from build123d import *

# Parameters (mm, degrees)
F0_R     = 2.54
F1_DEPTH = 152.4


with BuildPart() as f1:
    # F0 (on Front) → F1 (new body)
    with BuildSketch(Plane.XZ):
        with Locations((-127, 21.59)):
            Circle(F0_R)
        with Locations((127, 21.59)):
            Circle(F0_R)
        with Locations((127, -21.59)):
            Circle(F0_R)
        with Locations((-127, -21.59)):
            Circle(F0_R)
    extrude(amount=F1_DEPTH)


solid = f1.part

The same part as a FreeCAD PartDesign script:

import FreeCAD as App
import Part
import Sketcher

V = App.Vector
Q = App.Units.Quantity

doc = App.newDocument("Part")
body = doc.addObject("PartDesign::Body", "Body")
body.AllowCompound = True

# Sketch on XZ plane
sketch1 = doc.addObject("Sketcher::SketchObject", "Sketch")
body.addObject(sketch1)
sketch1.AttachmentSupport = (doc.XZ_Plane, [""])
sketch1.MapMode = "FlatFace"
sketch1.addGeometry(Part.Circle(V(-127, 21.6, 0), V(0, 0, 1), 2.5), False)
sketch1.addGeometry(Part.Circle(V(127, 21.6, 0), V(0, 0, 1), 2.5), False)
sketch1.addGeometry(Part.Circle(V(127, -21.6, 0), V(0, 0, 1), 2.5), False)
sketch1.addGeometry(Part.Circle(V(-127, -21.6, 0), V(0, 0, 1), 2.5), False)
sketch1.addConstraint(Sketcher.Constraint("Equal", 0, 1))
sketch1.addConstraint(Sketcher.Constraint("Equal", 1, 2))
sketch1.addConstraint(Sketcher.Constraint("Equal", 2, 3))
sketch1.addConstraint(Sketcher.Constraint("Symmetric", 0, 3, 2, 3, -1, 1))
sketch1.addConstraint(Sketcher.Constraint("Symmetric", 1, 3, 3, 3, -1, 1))
sketch1.addConstraint(Sketcher.Constraint("Symmetric", 0, 3, 1, 3, -2))
sketch1.addConstraint(Sketcher.Constraint("Diameter", 0, Q("0.2 in")))
sketch1.addConstraint(Sketcher.Constraint("DistanceX", 0, 3, -1, 1, Q("5 in")))
sketch1.addConstraint(Sketcher.Constraint("DistanceY", 2, 3, 1, 3, Q("1.7 in")))
pad1 = doc.addObject("PartDesign::Pad", "Pad")
body.addObject(pad1)
pad1.Profile = sketch1
pad1.Length = Q("6 in")

doc.recompute()
